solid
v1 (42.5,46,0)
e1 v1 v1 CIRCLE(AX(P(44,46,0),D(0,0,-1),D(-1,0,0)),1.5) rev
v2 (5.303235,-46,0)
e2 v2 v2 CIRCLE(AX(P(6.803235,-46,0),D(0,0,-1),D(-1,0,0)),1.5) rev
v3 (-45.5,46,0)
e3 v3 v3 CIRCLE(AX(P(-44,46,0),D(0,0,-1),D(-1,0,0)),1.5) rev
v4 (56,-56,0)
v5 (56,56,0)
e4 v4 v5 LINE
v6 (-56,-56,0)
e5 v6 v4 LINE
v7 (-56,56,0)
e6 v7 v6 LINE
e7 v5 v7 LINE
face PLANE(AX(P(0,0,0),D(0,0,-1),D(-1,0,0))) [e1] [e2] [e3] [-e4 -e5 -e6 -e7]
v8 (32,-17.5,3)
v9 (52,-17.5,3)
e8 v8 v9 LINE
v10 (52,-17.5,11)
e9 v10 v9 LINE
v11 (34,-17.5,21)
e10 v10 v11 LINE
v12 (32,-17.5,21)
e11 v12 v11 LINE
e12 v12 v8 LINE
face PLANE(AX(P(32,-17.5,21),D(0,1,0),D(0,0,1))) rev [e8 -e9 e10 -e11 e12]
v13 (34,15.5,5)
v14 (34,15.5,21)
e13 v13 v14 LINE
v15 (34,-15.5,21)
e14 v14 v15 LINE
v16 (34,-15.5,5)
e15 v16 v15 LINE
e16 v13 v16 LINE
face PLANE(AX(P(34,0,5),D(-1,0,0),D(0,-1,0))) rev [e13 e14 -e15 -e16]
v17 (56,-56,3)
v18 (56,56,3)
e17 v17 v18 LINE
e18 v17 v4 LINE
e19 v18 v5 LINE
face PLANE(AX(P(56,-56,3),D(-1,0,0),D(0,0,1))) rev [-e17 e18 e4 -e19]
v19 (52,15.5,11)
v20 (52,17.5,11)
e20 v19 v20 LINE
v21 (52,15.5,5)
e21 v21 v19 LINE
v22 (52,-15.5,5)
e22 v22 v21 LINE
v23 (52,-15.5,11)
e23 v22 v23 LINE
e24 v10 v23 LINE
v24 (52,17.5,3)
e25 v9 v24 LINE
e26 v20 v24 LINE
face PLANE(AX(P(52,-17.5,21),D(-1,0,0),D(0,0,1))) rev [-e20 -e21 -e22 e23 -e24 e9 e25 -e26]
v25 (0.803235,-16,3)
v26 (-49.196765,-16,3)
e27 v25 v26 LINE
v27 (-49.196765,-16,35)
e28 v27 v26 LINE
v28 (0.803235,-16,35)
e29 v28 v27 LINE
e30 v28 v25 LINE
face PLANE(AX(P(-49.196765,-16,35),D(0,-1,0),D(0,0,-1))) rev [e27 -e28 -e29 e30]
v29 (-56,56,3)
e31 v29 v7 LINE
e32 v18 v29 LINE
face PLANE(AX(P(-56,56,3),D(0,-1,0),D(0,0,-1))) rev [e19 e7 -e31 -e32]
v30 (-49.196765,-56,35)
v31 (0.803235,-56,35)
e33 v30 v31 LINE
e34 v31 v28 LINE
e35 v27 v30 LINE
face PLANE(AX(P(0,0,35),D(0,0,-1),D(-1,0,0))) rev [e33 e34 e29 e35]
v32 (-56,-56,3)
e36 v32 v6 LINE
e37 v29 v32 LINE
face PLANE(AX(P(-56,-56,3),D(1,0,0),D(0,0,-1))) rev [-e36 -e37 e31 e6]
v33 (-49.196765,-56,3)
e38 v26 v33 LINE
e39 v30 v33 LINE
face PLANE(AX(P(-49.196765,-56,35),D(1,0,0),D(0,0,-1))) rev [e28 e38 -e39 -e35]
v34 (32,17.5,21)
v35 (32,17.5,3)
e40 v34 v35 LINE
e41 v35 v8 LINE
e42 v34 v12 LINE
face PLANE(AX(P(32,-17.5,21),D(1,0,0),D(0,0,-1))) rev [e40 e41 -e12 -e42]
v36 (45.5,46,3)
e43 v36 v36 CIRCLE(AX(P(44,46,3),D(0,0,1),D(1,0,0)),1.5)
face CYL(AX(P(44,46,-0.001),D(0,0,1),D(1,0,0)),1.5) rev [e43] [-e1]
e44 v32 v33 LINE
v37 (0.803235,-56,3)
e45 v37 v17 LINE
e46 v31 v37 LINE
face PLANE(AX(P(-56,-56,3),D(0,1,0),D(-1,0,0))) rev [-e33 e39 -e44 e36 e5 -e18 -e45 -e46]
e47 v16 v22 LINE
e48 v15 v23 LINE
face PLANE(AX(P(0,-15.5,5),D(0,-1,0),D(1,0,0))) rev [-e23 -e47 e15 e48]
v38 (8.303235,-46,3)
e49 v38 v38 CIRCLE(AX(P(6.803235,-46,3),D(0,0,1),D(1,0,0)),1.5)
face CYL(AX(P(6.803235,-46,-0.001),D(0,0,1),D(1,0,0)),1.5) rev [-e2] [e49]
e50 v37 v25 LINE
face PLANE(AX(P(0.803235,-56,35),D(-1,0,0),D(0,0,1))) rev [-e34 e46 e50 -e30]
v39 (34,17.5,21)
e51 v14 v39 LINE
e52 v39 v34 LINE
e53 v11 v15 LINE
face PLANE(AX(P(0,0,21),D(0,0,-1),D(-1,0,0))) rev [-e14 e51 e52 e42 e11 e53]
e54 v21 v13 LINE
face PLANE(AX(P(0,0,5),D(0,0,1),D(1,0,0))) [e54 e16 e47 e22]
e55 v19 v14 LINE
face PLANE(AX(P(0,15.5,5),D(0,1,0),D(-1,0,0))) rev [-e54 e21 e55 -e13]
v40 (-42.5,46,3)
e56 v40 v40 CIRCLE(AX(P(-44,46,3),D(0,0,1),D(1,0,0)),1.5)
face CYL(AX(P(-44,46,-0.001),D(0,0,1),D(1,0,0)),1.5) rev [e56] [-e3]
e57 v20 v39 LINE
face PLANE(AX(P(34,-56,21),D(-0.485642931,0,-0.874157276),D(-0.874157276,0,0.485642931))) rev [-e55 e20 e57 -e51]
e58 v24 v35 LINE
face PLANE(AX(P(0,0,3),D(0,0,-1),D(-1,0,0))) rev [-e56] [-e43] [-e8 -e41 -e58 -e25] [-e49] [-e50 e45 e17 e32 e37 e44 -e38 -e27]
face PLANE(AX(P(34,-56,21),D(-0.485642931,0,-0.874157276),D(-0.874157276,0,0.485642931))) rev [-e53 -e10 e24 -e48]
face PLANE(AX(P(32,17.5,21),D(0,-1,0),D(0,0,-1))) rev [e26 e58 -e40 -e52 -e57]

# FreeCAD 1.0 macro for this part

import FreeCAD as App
import Part
import Sketcher
Q = App.Units.Quantity


def add_polygon(sketch, points):
    """Adds a closed chain of lines whose ends are joined by coincident constraints."""
    first, n = sketch.GeometryCount, len(points)
    for a, b in zip(points, points[1:] + points[:1]):
        sketch.addGeometry(Part.LineSegment(App.Vector(*a, 0), App.Vector(*b, 0)), False)
    for i in range(n):
        sketch.addConstraint(Sketcher.Constraint("Coincident", first + i, 2, first + (i + 1) % n, 1))

doc = App.newDocument("Part")
params = doc.addObject("Spreadsheet::Sheet", "Params")
for row, (alias, value) in enumerate([
    ("sketch1_width", "112 mm"),
    ("pad1_length", "3 mm"),
    ("sketch2_width", "50 mm"),
    ("sketch2_height", "40 mm"),
    ("pad2_length", "32 mm"),
    ("sketch3_diameter", "3 mm"),
    ("sketch4_diameter", "3 mm"),
    ("sketch5_diameter", "3 mm"),
    ("sketch6_width", "20 mm"),
    ("sketch6_height", "35 mm"),
    ("pad3_length", "18 mm"),
    ("sketch7_width", "18 mm"),
    ("sketch7_height", "31 mm"),
    ("pocket4_length", "16 mm"),
    ("sketch8_width", "18 mm"),
    ("sketch8_height", "10 mm"),
], start=1):
    params.set(f"A{row}", alias)
    params.set(f"B{row}", "=" + value)
    params.setAlias(f"B{row}", alias)

body = doc.addObject("PartDesign::Body", "Body")

# Sketch on XY plane
sketch1 = doc.addObject("Sketcher::SketchObject", "Sketch")
body.addObject(sketch1)
sketch1.AttachmentSupport = (doc.XY_Plane, [""])
sketch1.MapMode = "FlatFace"
add_polygon(sketch1, [(-56, 56), (-56, -56), (56, -56), (56, 56)])  # lines 0-3
sketch1.addConstraint(Sketcher.Constraint("Vertical", 0))
sketch1.addConstraint(Sketcher.Constraint("Horizontal", 1))
sketch1.addConstraint(Sketcher.Constraint("Vertical", 2))
sketch1.addConstraint(Sketcher.Constraint("Horizontal", 3))
sketch1.addConstraint(Sketcher.Constraint("Symmetric", 0, 2, 2, 2, -1, 1))
sketch1.addConstraint(Sketcher.Constraint("Equal", 3, 0))
sketch1.addConstraint(Sketcher.Constraint("DistanceX", 1, 1, 1, 2, Q("112 mm")))
sketch1.setExpression("Constraints[10]", "Params.sketch1_width")
pad1 = doc.addObject("PartDesign::Pad", "Pad")
body.addObject(pad1)
pad1.Profile = sketch1
pad1.setExpression("Length", "Params.pad1_length")

# Sketch on XY plane
sketch2 = doc.addObject("Sketcher::SketchObject", "Sketch001")
body.addObject(sketch2)
sketch2.AttachmentSupport = (doc.XY_Plane, [""])
sketch2.MapMode = "FlatFace"
sketch2.AttachmentOffset = App.Placement(App.Vector(0, 0, 3), App.Rotation())
add_polygon(sketch2, [(-49.196765, -16), (-49.196765, -56), (0.803235, -56), (0.803235, -16)])  # lines 0-3
sketch2.addConstraint(Sketcher.Constraint("Vertical", 0))
sketch2.addConstraint(Sketcher.Constraint("Horizontal", 1))
sketch2.addConstraint(Sketcher.Constraint("Vertical", 2))
sketch2.addConstraint(Sketcher.Constraint("Horizontal", 3))
sketch2.addConstraint(Sketcher.Constraint("DistanceX", 1, 1, 1, 2, Q("50 mm")))
sketch2.addConstraint(Sketcher.Constraint("DistanceY", 0, 2, 0, 1, Q("40 mm")))
sketch2.addConstraint(Sketcher.Constraint("DistanceY", 0, 2, -1, 1, Q("56 mm")))
sketch2.addConstraint(Sketcher.Constraint("DistanceX", 0, 2, -1, 1, Q("49.196765 mm")))
sketch2.setExpression("Constraints[8]", "Params.sketch2_width")
sketch2.setExpression("Constraints[9]", "Params.sketch2_height")
pad2 = doc.addObject("PartDesign::Pad", "Pad001")
body.addObject(pad2)
pad2.Profile = sketch2
pad2.setExpression("Length", "Params.pad2_length")

# Sketch on XY plane
sketch3 = doc.addObject("Sketcher::SketchObject", "Sketch002")
body.addObject(sketch3)
sketch3.AttachmentSupport = (doc.XY_Plane, [""])
sketch3.MapMode = "FlatFace"
sketch3.AttachmentOffset = App.Placement(App.Vector(0, 0, 3), App.Rotation())
sketch3.addGeometry(Part.Circle(App.Vector(-44, 46, 0), App.Vector(0, 0, 1), 1.5), False)
sketch3.addConstraint(Sketcher.Constraint("Diameter", 0, Q("3 mm")))
sketch3.addConstraint(Sketcher.Constraint("DistanceX", 0, 3, -1, 1, Q("44 mm")))
sketch3.addConstraint(Sketcher.Constraint("DistanceY", -1, 1, 0, 3, Q("46 mm")))
sketch3.setExpression("Constraints[0]", "Params.sketch3_diameter")
pocket1 = doc.addObject("PartDesign::Pocket", "Pocket")
body.addObject(pocket1)
pocket1.Profile = sketch3
pocket1.Type = "UpToFirst"

# Sketch on XY plane
sketch4 = doc.addObject("Sketcher::SketchObject", "Sketch003")
body.addObject(sketch4)
sketch4.AttachmentSupport = (doc.XY_Plane, [""])
sketch4.MapMode = "FlatFace"
sketch4.AttachmentOffset = App.Placement(App.Vector(0, 0, 3), App.Rotation())
sketch4.addGeometry(Part.Circle(App.Vector(44, 46, 0), App.Vector(0, 0, 1), 1.5), False)
sketch4.addConstraint(Sketcher.Constraint("Diameter", 0, Q("3 mm")))
sketch4.addConstraint(Sketcher.Constraint("DistanceX", -1, 1, 0, 3, Q("44 mm")))
sketch4.addConstraint(Sketcher.Constraint("DistanceY", -1, 1, 0, 3, Q("46 mm")))
sketch4.setExpression("Constraints[0]", "Params.sketch4_diameter")
pocket2 = doc.addObject("PartDesign::Pocket", "Pocket001")
body.addObject(pocket2)
pocket2.Profile = sketch4
pocket2.Type = "UpToFirst"

# Sketch on XY plane
sketch5 = doc.addObject("Sketcher::SketchObject", "Sketch004")
body.addObject(sketch5)
sketch5.AttachmentSupport = (doc.XY_Plane, [""])
sketch5.MapMode = "FlatFace"
sketch5.AttachmentOffset = App.Placement(App.Vector(0, 0, 3), App.Rotation())
sketch5.addGeometry(Part.Circle(App.Vector(6.803235, -46, 0), App.Vector(0, 0, 1), 1.5), False)
sketch5.addConstraint(Sketcher.Constraint("Diameter", 0, Q("3 mm")))
sketch5.addConstraint(Sketcher.Constraint("DistanceY", 0, 3, -1, 1, Q("46 mm")))
sketch5.addConstraint(Sketcher.Constraint("DistanceX", -1, 1, 0, 3, Q("6.803235 mm")))
sketch5.setExpression("Constraints[0]", "Params.sketch5_diameter")
pocket3 = doc.addObject("PartDesign::Pocket", "Pocket002")
body.addObject(pocket3)
pocket3.Profile = sketch5
pocket3.Type = "UpToFirst"

# Sketch on XY plane
sketch6 = doc.addObject("Sketcher::SketchObject", "Sketch005")
body.addObject(sketch6)
sketch6.AttachmentSupport = (doc.XY_Plane, [""])
sketch6.MapMode = "FlatFace"
sketch6.AttachmentOffset = App.Placement(App.Vector(0, 0, 3), App.Rotation())
add_polygon(sketch6, [(32, 17.5), (32, -17.5), (52, -17.5), (52, 17.5)])  # lines 0-3
sketch6.addConstraint(Sketcher.Constraint("Vertical", 0))
sketch6.addConstraint(Sketcher.Constraint("Horizontal", 1))
sketch6.addConstraint(Sketcher.Constraint("Vertical", 2))
sketch6.addConstraint(Sketcher.Constraint("Horizontal", 3))
sketch6.addConstraint(Sketcher.Constraint("DistanceX", 1, 1, 1, 2, Q("20 mm")))
sketch6.addConstraint(Sketcher.Constraint("DistanceY", 0, 2, 0, 1, Q("35 mm")))
sketch6.addConstraint(Sketcher.Constraint("DistanceX", -1, 1, 0, 2, Q("32 mm")))
sketch6.addConstraint(Sketcher.Constraint("DistanceY", 0, 2, -1, 1, Q("17.5 mm")))
sketch6.setExpression("Constraints[8]", "Params.sketch6_width")
sketch6.setExpression("Constraints[9]", "Params.sketch6_height")
pad3 = doc.addObject("PartDesign::Pad", "Pad002")
body.addObject(pad3)
pad3.Profile = sketch6
pad3.setExpression("Length", "Params.pad3_length")

# Sketch on XY plane
sketch7 = doc.addObject("Sketcher::SketchObject", "Sketch006")
body.addObject(sketch7)
sketch7.AttachmentSupport = (doc.XY_Plane, [""])
sketch7.MapMode = "FlatFace"
sketch7.AttachmentOffset = App.Placement(App.Vector(0, 0, 21), App.Rotation())
add_polygon(sketch7, [(34, 15.5), (34, -15.5), (52, -15.5), (52, 15.5)])  # lines 0-3
sketch7.addConstraint(Sketcher.Constraint("Vertical", 0))
sketch7.addConstraint(Sketcher.Constraint("Horizontal", 1))
sketch7.addConstraint(Sketcher.Constraint("Vertical", 2))
sketch7.addConstraint(Sketcher.Constraint("Horizontal", 3))
sketch7.addConstraint(Sketcher.Constraint("DistanceX", 1, 1, 1, 2, Q("18 mm")))
sketch7.addConstraint(Sketcher.Constraint("DistanceY", 0, 2, 0, 1, Q("31 mm")))
sketch7.addConstraint(Sketcher.Constraint("DistanceX", -1, 1, 0, 2, Q("34 mm")))
sketch7.addConstraint(Sketcher.Constraint("DistanceY", 0, 2, -1, 1, Q("15.5 mm")))
sketch7.setExpression("Constraints[8]", "Params.sketch7_width")
sketch7.setExpression("Constraints[9]", "Params.sketch7_height")
pocket4 = doc.addObject("PartDesign::Pocket", "Pocket003")
body.addObject(pocket4)
pocket4.Profile = sketch7
pocket4.setExpression("Length", "Params.pocket4_length")

# Sketch on XZ plane
sketch8 = doc.addObject("Sketcher::SketchObject", "Sketch007")
body.addObject(sketch8)
sketch8.AttachmentSupport = (doc.XZ_Plane, [""])
sketch8.MapMode = "FlatFace"
sketch8.AttachmentOffset = App.Placement(App.Vector(0, 0, -17.5), App.Rotation())
add_polygon(sketch8, [(52, 11), (34, 21), (52, 21)])  # lines 0-2
sketch8.addConstraint(Sketcher.Constraint("Horizontal", 1))
sketch8.addConstraint(Sketcher.Constraint("Vertical", 2))
sketch8.addConstraint(Sketcher.Constraint("DistanceX", 1, 1, 1, 2, Q("18 mm")))
sketch8.addConstraint(Sketcher.Constraint("DistanceY", 2, 2, 2, 1, Q("10 mm")))
sketch8.addConstraint(Sketcher.Constraint("DistanceX", -1, 1, 0, 2, Q("34 mm")))
sketch8.addConstraint(Sketcher.Constraint("DistanceY", -1, 1, 0, 2, Q("21 mm")))
sketch8.setExpression("Constraints[5]", "Params.sketch8_width")
sketch8.setExpression("Constraints[6]", "Params.sketch8_height")
pocket5 = doc.addObject("PartDesign::Pocket", "Pocket004")
body.addObject(pocket5)
pocket5.Profile = sketch8
pocket5.Type = "ThroughAll"
pocket5.Reversed = True

doc.recompute()
